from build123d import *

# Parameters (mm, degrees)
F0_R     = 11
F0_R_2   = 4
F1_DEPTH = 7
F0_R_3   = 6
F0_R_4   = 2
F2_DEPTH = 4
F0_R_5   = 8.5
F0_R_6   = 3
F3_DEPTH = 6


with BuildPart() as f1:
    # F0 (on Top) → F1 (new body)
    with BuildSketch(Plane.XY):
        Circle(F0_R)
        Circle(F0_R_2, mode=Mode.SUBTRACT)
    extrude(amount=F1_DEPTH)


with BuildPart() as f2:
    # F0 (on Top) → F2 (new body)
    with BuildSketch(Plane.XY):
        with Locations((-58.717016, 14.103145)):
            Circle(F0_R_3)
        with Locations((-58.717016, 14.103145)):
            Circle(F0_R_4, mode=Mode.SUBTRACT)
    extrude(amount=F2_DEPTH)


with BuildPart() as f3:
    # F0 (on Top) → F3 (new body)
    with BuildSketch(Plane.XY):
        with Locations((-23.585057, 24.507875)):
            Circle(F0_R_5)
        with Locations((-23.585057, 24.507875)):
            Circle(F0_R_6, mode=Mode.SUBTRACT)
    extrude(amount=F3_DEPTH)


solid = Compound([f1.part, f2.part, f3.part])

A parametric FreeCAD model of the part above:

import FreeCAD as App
import Part
import Sketcher
from FreeCAD import Vector
Q = App.Units.Quantity

doc = App.newDocument("Part")
params = doc.addObject("Spreadsheet::Sheet", "Params")
for row, (alias, value) in enumerate([
    ("sketch1_diameter", "22 mm"),
    ("sketch1_diameter2", "8 mm"),
    ("pad1_length", "7 mm"),
    ("sketch2_diameter", "12 mm"),
    ("sketch2_diameter2", "4 mm"),
    ("pad2_length", "4 mm"),
    ("sketch3_diameter", "17 mm"),
    ("sketch3_diameter2", "6 mm"),
    ("pad3_length", "6 mm"),
], start=1):
    params.set(f"A{row}", alias)
    params.set(f"B{row}", "=" + value)
    params.setAlias(f"B{row}", alias)

body = doc.addObject("PartDesign::Body", "Body")

# Sketch on XY plane
sketch1 = body.newObject("Sketcher::SketchObject", "Sketch")
sketch1.AttachmentSupport = (doc.getObject("XY_Plane"), [""])
sketch1.MapMode = "FlatFace"
sketch1.addGeometry([
    Part.Circle(Vector(0, 0, 0), Vector(0, 0, 1), 11),
    Part.Circle(Vector(0, 0, 0), Vector(0, 0, 1), 4),
], False)
sketch1.addConstraint([
    Sketcher.Constraint("Coincident", 0, 3, -1, 1),
    Sketcher.Constraint("Coincident", 1, 3, -1, 1),
    Sketcher.Constraint("Diameter", 0, Q("22 mm")),
    Sketcher.Constraint("Diameter", 1, Q("8 mm")),
])
sketch1.setExpression("Constraints[2]", "Params.sketch1_diameter")
sketch1.setExpression("Constraints[3]", "Params.sketch1_diameter2")
pad1 = body.newObject("PartDesign::Pad", "Pad")
pad1.Profile = sketch1
pad1.setExpression("Length", "Params.pad1_length")
body2 = doc.addObject("PartDesign::Body", "Body001")

# Sketch on XY plane
sketch2 = body2.newObject("Sketcher::SketchObject", "Sketch001")
sketch2.AttachmentSupport = (doc.getObject("XY_Plane001"), [""])
sketch2.MapMode = "FlatFace"
sketch2.addGeometry([
    Part.Circle(Vector(-58.717016, 14.103145, 0), Vector(0, 0, 1), 6),
    Part.Circle(Vector(-58.717016, 14.103145, 0), Vector(0, 0, 1), 2),
], False)
sketch2.addConstraint([
    Sketcher.Constraint("Coincident", 1, 3, 0, 3),
    Sketcher.Constraint("Diameter", 0, Q("12 mm")),
    Sketcher.Constraint("Diameter", 1, Q("4 mm")),
    Sketcher.Constraint("DistanceX", 0, 3, -1, 1, Q("58.717016 mm")),
    Sketcher.Constraint("DistanceY", -1, 1, 0, 3, Q("14.103145 mm")),
])
sketch2.setExpression("Constraints[1]", "Params.sketch2_diameter")
sketch2.setExpression("Constraints[2]", "Params.sketch2_diameter2")
pad2 = body2.newObject("PartDesign::Pad", "Pad001")
pad2.Profile = sketch2
pad2.setExpression("Length", "Params.pad2_length")
body3 = doc.addObject("PartDesign::Body", "Body002")

# Sketch on XY plane
sketch3 = body3.newObject("Sketcher::SketchObject", "Sketch002")
sketch3.AttachmentSupport = (doc.getObject("XY_Plane002"), [""])
sketch3.MapMode = "FlatFace"
sketch3.addGeometry([
    Part.Circle(Vector(-23.585057, 24.507875, 0), Vector(0, 0, 1), 8.5),
    Part.Circle(Vector(-23.585057, 24.507875, 0), Vector(0, 0, 1), 3),
], False)
sketch3.addConstraint([
    Sketcher.Constraint("Coincident", 1, 3, 0, 3),
    Sketcher.Constraint("Diameter", 0, Q("17 mm")),
    Sketcher.Constraint("Diameter", 1, Q("6 mm")),
    Sketcher.Constraint("DistanceX", 0, 3, -1, 1, Q("23.585057 mm")),
    Sketcher.Constraint("DistanceY", -1, 1, 0, 3, Q("24.507875 mm")),
])
sketch3.setExpression("Constraints[1]", "Params.sketch3_diameter")
sketch3.setExpression("Constraints[2]", "Params.sketch3_diameter2")
pad3 = body3.newObject("PartDesign::Pad", "Pad002")
pad3.Profile = sketch3
pad3.setExpression("Length", "Params.pad3_length")

doc.recompute()
